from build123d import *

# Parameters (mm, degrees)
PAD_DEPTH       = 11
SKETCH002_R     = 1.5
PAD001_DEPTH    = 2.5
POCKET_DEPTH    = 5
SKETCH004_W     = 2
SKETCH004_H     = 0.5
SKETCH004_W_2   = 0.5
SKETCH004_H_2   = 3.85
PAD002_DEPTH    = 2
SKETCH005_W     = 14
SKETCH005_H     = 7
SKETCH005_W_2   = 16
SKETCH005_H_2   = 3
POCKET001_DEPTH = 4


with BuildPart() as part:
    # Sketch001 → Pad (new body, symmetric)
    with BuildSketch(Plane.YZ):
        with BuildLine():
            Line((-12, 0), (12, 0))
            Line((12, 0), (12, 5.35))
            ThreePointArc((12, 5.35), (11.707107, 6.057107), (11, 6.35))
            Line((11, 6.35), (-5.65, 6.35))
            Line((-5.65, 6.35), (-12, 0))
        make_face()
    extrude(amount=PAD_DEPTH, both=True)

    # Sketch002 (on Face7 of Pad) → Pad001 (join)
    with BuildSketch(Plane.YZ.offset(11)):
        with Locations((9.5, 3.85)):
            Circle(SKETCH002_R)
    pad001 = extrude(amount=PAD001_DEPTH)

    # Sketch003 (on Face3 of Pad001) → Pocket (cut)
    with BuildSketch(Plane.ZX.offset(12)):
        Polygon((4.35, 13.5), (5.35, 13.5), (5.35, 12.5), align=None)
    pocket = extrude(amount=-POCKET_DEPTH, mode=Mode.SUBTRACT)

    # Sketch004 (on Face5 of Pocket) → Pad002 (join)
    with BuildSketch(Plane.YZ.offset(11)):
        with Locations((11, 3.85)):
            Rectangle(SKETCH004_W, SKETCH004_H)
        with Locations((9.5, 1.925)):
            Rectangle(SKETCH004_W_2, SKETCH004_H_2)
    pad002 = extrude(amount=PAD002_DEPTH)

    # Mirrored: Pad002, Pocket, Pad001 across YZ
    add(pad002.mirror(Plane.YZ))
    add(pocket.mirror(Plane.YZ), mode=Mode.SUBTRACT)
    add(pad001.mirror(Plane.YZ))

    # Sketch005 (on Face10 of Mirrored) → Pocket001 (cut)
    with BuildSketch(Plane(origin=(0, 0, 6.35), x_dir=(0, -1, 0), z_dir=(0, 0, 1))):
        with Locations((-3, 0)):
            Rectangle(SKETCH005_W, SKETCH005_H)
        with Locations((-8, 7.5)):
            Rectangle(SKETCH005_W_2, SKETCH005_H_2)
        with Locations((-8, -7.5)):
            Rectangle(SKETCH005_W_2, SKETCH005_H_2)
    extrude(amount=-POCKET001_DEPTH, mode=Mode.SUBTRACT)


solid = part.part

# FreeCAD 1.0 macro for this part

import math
import FreeCAD as App
import Part
import Sketcher
from FreeCAD import Vector
Q = App.Units.Quantity

doc = App.newDocument("Part")
body = doc.addObject("PartDesign::Body", "Body")

# Sketch on YZ plane
sketch1 = body.newObject("Sketcher::SketchObject", "Sketch")
sketch1.AttachmentSupport = (doc.getObject("YZ_Plane"), [""])
sketch1.MapMode = "FlatFace"
sketch1.addGeometry(Part.LineSegment(Vector(-12, 0, 0), Vector(12, 0, 0)), False)
sketch1.addGeometry(Part.LineSegment(Vector(12, 0, 0), Vector(12, 5.3, 0)), False)
sketch1.addGeometry(Part.ArcOfCircle(Part.Circle(Vector(11, 5.4, 0), Vector(0, 0, 1), 1), math.radians(0), math.radians(90)), False)
sketch1.addGeometry(Part.LineSegment(Vector(11, 6.3, 0), Vector(-5.7, 6.3, 0)), False)
sketch1.addGeometry(Part.LineSegment(Vector(-5.7, 6.3, 0), Vector(-12, 0, 0)), False)
sketch1.addConstraint(Sketcher.Constraint("Coincident", 0, 2, 1, 1))
sketch1.addConstraint(Sketcher.Constraint("Tangent", 1, 2, 2, 1))
sketch1.addConstraint(Sketcher.Constraint("Tangent", 2, 2, 3, 1))
sketch1.addConstraint(Sketcher.Constraint("Coincident", 3, 2, 4, 1))
sketch1.addConstraint(Sketcher.Constraint("Coincident", 4, 2, 0, 1))
sketch1.addConstraint(Sketcher.Constraint("Horizontal", 0))
sketch1.addConstraint(Sketcher.Constraint("Vertical", 1))
sketch1.addConstraint(Sketcher.Constraint("Horizontal", 3))
sketch1.addConstraint(Sketcher.Constraint("Symmetric", 0, 2, 4, 2, -1, 1))
sketch1.addConstraint(Sketcher.Constraint("Radius", 2, 0.999999))
sketch1.addConstraint(Sketcher.Constraint("DistanceX", 0, 1, 0, 2, 24.0))
sketch1.addConstraint(Sketcher.Constraint("Angle", 4, Q("-135 deg")))
sketch1.addConstraint(Sketcher.Constraint("DistanceX", 3, 2, 3, 1, 16.65))
pad1 = body.newObject("PartDesign::Pad", "Pad")
pad1.Profile = sketch1
pad1.Length = 22
pad1.Midplane = True

# Sketch on YZ plane
sketch2 = body.newObject("Sketcher::SketchObject", "Sketch001")
sketch2.AttachmentSupport = (doc.getObject("YZ_Plane"), [""])
sketch2.MapMode = "FlatFace"
sketch2.AttachmentOffset = App.Placement(Vector(0, 0, 11), App.Rotation())
sketch2.addGeometry(Part.Circle(Vector(9.5, 3.9, 0), Vector(0, 0, 1), 1.5), False)
sketch2.addConstraint(Sketcher.Constraint("Diameter", 0, 3.0))
sketch2.addConstraint(Sketcher.Constraint("DistanceX", -1, 1, 0, 3, 9.5))
sketch2.addConstraint(Sketcher.Constraint("DistanceY", -1, 1, 0, 3, 3.85))
pad2 = body.newObject("PartDesign::Pad", "Pad001")
pad2.Profile = sketch2
pad2.Length = 2.5

# Sketch on XZ plane
sketch3 = body.newObject("Sketcher::SketchObject", "Sketch002")
sketch3.AttachmentSupport = (doc.getObject("XZ_Plane"), [""])
sketch3.MapMode = "FlatFace"
sketch3.AttachmentOffset = App.Placement(Vector(0, 0, -12), App.Rotation())
sketch3.addGeometry(Part.LineSegment(Vector(13.5, 5.3, 0), Vector(13.5, 4.3, 0)), False)
sketch3.addGeometry(Part.LineSegment(Vector(13.5, 4.3, 0), Vector(12.5, 5.3, 0)), False)
sketch3.addGeometry(Part.LineSegment(Vector(12.5, 5.3, 0), Vector(13.5, 5.3, 0)), False)
sketch3.addConstraint(Sketcher.Constraint("Coincident", 0, 2, 1, 1))
sketch3.addConstraint(Sketcher.Constraint("Coincident", 1, 2, 2, 1))
sketch3.addConstraint(Sketcher.Constraint("Coincident", 2, 2, 0, 1))
sketch3.addConstraint(Sketcher.Constraint("Vertical", 0))
sketch3.addConstraint(Sketcher.Constraint("Horizontal", 2))
sketch3.addConstraint(Sketcher.Constraint("Equal", 2, 0))
sketch3.addConstraint(Sketcher.Constraint("DistanceX", 2, 1, 2, 2, 1.0))
sketch3.addConstraint(Sketcher.Constraint("DistanceX", -1, 1, 0, 2, 13.5))
sketch3.addConstraint(Sketcher.Constraint("DistanceY", -1, 1, 0, 2, 4.35))
pocket1 = body.newObject("PartDesign::Pocket", "Pocket")
pocket1.Profile = sketch3
pocket1.Length = 5
pocket1.Reversed = True

# Sketch on YZ plane
sketch4 = body.newObject("Sketcher::SketchObject", "Sketch003")
sketch4.AttachmentSupport = (doc.getObject("YZ_Plane"), [""])
sketch4.MapMode = "FlatFace"
sketch4.AttachmentOffset = App.Placement(Vector(0, 0, 11), App.Rotation())
sketch4.addGeometry(Part.LineSegment(Vector(10, 4.1, 0), Vector(10, 3.6, 0)), False)
sketch4.addGeometry(Part.LineSegment(Vector(10, 3.6, 0), Vector(12, 3.6, 0)), False)
sketch4.addGeometry(Part.LineSegment(Vector(12, 3.6, 0), Vector(12, 4.1, 0)), False)
sketch4.addGeometry(Part.LineSegment(Vector(12, 4.1, 0), Vector(10, 4.1, 0)), False)
sketch4.addGeometry(Part.LineSegment(Vector(9.25, 3.85, 0), Vector(9.25, 0, 0)), False)
sketch4.addGeometry(Part.LineSegment(Vector(9.25, 0, 0), Vector(9.75, 0, 0)), False)
sketch4.addGeometry(Part.LineSegment(Vector(9.75, 0, 0), Vector(9.75, 3.85, 0)), False)
sketch4.addGeometry(Part.LineSegment(Vector(9.75, 3.85, 0), Vector(9.25, 3.85, 0)), False)
sketch4.addConstraint(Sketcher.Constraint("Coincident", 0, 2, 1, 1))
sketch4.addConstraint(Sketcher.Constraint("Coincident", 1, 2, 2, 1))
sketch4.addConstraint(Sketcher.Constraint("Coincident", 2, 2, 3, 1))
sketch4.addConstraint(Sketcher.Constraint("Coincident", 3, 2, 0, 1))
sketch4.addConstraint(Sketcher.Constraint("Coincident", 4, 2, 5, 1))
sketch4.addConstraint(Sketcher.Constraint("Coincident", 5, 2, 6, 1))
sketch4.addConstraint(Sketcher.Constraint("Coincident", 6, 2, 7, 1))
sketch4.addConstraint(Sketcher.Constraint("Coincident", 7, 2, 4, 1))
sketch4.addConstraint(Sketcher.Constraint("Vertical", 0))
sketch4.addConstraint(Sketcher.Constraint("Horizontal", 1))
sketch4.addConstraint(Sketcher.Constraint("Vertical", 2))
sketch4.addConstraint(Sketcher.Constraint("Horizontal", 3))
sketch4.addConstraint(Sketcher.Constraint("Vertical", 4))
sketch4.addConstraint(Sketcher.Constraint("Horizontal", 5))
sketch4.addConstraint(Sketcher.Constraint("Vertical", 6))
sketch4.addConstraint(Sketcher.Constraint("Horizontal", 7))
sketch4.addConstraint(Sketcher.Constraint("PointOnObject", 4, 2, -1))
sketch4.addConstraint(Sketcher.Constraint("Equal", 7, 0))
sketch4.addConstraint(Sketcher.Constraint("DistanceX", 1, 1, 1, 2, 2.0))
sketch4.addConstraint(Sketcher.Constraint("DistanceX", 5, 1, 5, 2, 0.5))
sketch4.addConstraint(Sketcher.Constraint("DistanceX", -1, 1, 0, 2, 10.0))
sketch4.addConstraint(Sketcher.Constraint("DistanceY", 4, 2, 4, 1, 3.85))
sketch4.addConstraint(Sketcher.Constraint("DistanceY", -1, 1, 0, 2, 3.6))
sketch4.addConstraint(Sketcher.Constraint("DistanceX", -1, 1, 4, 2, 9.25))
pad3 = body.newObject("PartDesign::Pad", "Pad002")
pad3.Profile = sketch4
pad3.Length = 2
doc.recompute()

mirrored = body.newObject("PartDesign::Mirrored", "Mirrored")
mirrored.Originals = [pad3, pocket1, pad2]
mirrored.MirrorPlane = (doc.getObject("YZ_Plane"), [""])
body.Tip = mirrored

# Sketch on XY plane
sketch5 = body.newObject("Sketcher::SketchObject", "Sketch004")
sketch5.AttachmentSupport = (doc.getObject("XY_Plane"), [""])
sketch5.MapMode = "FlatFace"
sketch5.AttachmentOffset = App.Placement(Vector(0, 0, 6.35), App.Rotation())
sketch5.addGeometry(Part.LineSegment(Vector(3.5, 10, 0), Vector(-3.5, 10, 0)), False)
sketch5.addGeometry(Part.LineSegment(Vector(-3.5, 10, 0), Vector(-3.5, -4, 0)), False)
sketch5.addGeometry(Part.LineSegment(Vector(-3.5, -4, 0), Vector(3.5, -4, 0)), False)
sketch5.addGeometry(Part.LineSegment(Vector(3.5, -4, 0), Vector(3.5, 10, 0)), False)
sketch5.addGeometry(Part.LineSegment(Vector(9, 16, 0), Vector(6, 16, 0)), False)
sketch5.addGeometry(Part.LineSegment(Vector(6, 16, 0), Vector(6, 0, 0)), False)
sketch5.addGeometry(Part.LineSegment(Vector(6, 0, 0), Vector(9, 0, 0)), False)
sketch5.addGeometry(Part.LineSegment(Vector(9, 0, 0), Vector(9, 16, 0)), False)
sketch5.addGeometry(Part.LineSegment(Vector(-6, 16, 0), Vector(-9, 16, 0)), False)
sketch5.addGeometry(Part.LineSegment(Vector(-9, 16, 0), Vector(-9, 0, 0)), False)
sketch5.addGeometry(Part.LineSegment(Vector(-9, 0, 0), Vector(-6, 0, 0)), False)
sketch5.addGeometry(Part.LineSegment(Vector(-6, 0, 0), Vector(-6, 16, 0)), False)
sketch5.addConstraint(Sketcher.Constraint("Coincident", 0, 2, 1, 1))
sketch5.addConstraint(Sketcher.Constraint("Coincident", 1, 2, 2, 1))
sketch5.addConstraint(Sketcher.Constraint("Coincident", 2, 2, 3, 1))
sketch5.addConstraint(Sketcher.Constraint("Coincident", 3, 2, 0, 1))
sketch5.addConstraint(Sketcher.Constraint("Coincident", 4, 2, 5, 1))
sketch5.addConstraint(Sketcher.Constraint("Coincident", 5, 2, 6, 1))
sketch5.addConstraint(Sketcher.Constraint("Coincident", 6, 2, 7, 1))
sketch5.addConstraint(Sketcher.Constraint("Coincident", 7, 2, 4, 1))
sketch5.addConstraint(Sketcher.Constraint("Coincident", 8, 2, 9, 1))
sketch5.addConstraint(Sketcher.Constraint("Coincident", 9, 2, 10, 1))
sketch5.addConstraint(Sketcher.Constraint("Coincident", 10, 2, 11, 1))
sketch5.addConstraint(Sketcher.Constraint("Coincident", 11, 2, 8, 1))
sketch5.addConstraint(Sketcher.Constraint("Horizontal", 0))
sketch5.addConstraint(Sketcher.Constraint("Vertical", 1))
sketch5.addConstraint(Sketcher.Constraint("Horizontal", 2))
sketch5.addConstraint(Sketcher.Constraint("Vertical", 3))
sketch5.addConstraint(Sketcher.Constraint("Horizontal", 4))
sketch5.addConstraint(Sketcher.Constraint("Vertical", 5))
sketch5.addConstraint(Sketcher.Constraint("Horizontal", 6))
sketch5.addConstraint(Sketcher.Constraint("Vertical", 7))
sketch5.addConstraint(Sketcher.Constraint("Horizontal", 8))
sketch5.addConstraint(Sketcher.Constraint("Vertical", 9))
sketch5.addConstraint(Sketcher.Constraint("Horizontal", 10))
sketch5.addConstraint(Sketcher.Constraint("Vertical", 11))
sketch5.addConstraint(Sketcher.Constraint("Symmetric", 6, 2, 9, 2, -1, 1))
sketch5.addConstraint(Sketcher.Constraint("Symmetric", 5, 2, 10, 2, -2))
sketch5.addConstraint(Sketcher.Constraint("Horizontal", 7, 2, 8, 2))
sketch5.addConstraint(Sketcher.Constraint("DistanceX", 0, 2, 0, 1, 7.0))
sketch5.addConstraint(Sketcher.Constraint("DistanceX", 4, 2, 4, 1, 3.0))
sketch5.addConstraint(Sketcher.Constraint("DistanceY", 1, 2, 1, 1, 14.0))
sketch5.addConstraint(Sketcher.Constraint("DistanceY", 5, 2, 5, 1, 16.0))
sketch5.addConstraint(Sketcher.Constraint("DistanceY", -1, 1, 0, 2, 10.0))
sketch5.addConstraint(Sketcher.Constraint("DistanceX", -1, 1, 4, 2, 6.0))
sketch5.addConstraint(Sketcher.Constraint("DistanceX", 0, 2, -1, 1, 3.5))
pocket2 = body.newObject("PartDesign::Pocket", "Pocket001")
pocket2.Profile = sketch5
pocket2.Length = 4

doc.recompute()
